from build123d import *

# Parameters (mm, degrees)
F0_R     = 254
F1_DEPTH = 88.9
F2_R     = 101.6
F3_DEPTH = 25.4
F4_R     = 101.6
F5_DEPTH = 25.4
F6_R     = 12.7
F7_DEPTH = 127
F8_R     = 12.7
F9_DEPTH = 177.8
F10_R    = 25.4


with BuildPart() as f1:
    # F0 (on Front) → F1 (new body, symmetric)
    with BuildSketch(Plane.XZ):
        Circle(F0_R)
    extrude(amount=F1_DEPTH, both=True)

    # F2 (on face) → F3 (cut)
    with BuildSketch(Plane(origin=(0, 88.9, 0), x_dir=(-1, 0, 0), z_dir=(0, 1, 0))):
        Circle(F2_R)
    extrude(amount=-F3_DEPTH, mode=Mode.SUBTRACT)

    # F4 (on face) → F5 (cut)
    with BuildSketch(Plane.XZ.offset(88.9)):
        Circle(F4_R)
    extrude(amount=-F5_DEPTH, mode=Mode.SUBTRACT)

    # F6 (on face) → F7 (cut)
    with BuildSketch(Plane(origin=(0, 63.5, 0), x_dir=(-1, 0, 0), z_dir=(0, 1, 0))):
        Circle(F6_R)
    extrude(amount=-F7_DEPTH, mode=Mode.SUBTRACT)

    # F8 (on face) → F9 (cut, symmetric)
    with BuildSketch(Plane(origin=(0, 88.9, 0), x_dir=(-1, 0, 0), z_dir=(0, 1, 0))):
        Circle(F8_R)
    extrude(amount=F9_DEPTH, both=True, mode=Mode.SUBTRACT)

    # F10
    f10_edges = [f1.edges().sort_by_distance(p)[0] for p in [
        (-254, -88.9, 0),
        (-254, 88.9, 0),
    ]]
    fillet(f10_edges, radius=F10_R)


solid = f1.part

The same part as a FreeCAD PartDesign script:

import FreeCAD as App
import Part
import Sketcher

V = App.Vector
Q = App.Units.Quantity


def edges_at(feature, points):
    """Names of the edges that pass closest to the given points."""
    edges = feature.Shape.Edges
    near = lambda p: min(range(len(edges)), key=lambda i: edges[i].distToShape(Part.Vertex(*p))[0])
    return sorted({f"Edge{near(p) + 1}" for p in points})

doc = App.newDocument("Part")
body = doc.addObject("PartDesign::Body", "Body")

sketch1 = body.newObject("Sketcher::SketchObject", "Sketch")
sketch1.AttachmentSupport = (doc.getObject("XZ_Plane"), [""])
sketch1.MapMode = "FlatFace"
sketch1.addGeometry(Part.Circle(V(0, 0, 0), V(0, 0, 1), 254), False)
sketch1.addConstraint([
    Sketcher.Constraint("Coincident", 0, 3, -1, 1),
    Sketcher.Constraint("Diameter", 0, Q("20 in")),
])
pad1 = body.newObject("PartDesign::Pad", "Pad")
pad1.Profile = sketch1
pad1.Length = Q("7 in")
pad1.Midplane = True

sketch2 = body.newObject("Sketcher::SketchObject", "Sketch001")
sketch2.AttachmentSupport = (doc.getObject("XZ_Plane"), [""])
sketch2.MapMode = "FlatFace"
sketch2.AttachmentOffset = App.Placement(V(0, 0, -3.5 * 25.4), App.Rotation())
sketch2.addGeometry(Part.Circle(V(0, 0, 0), V(0, 0, 1), 102), False)
sketch2.addConstraint([
    Sketcher.Constraint("Coincident", 0, 3, -1, 1),
    Sketcher.Constraint("Diameter", 0, Q("8 in")),
])
pocket1 = body.newObject("PartDesign::Pocket", "Pocket")
pocket1.Profile = sketch2
pocket1.Length = Q("1 in")
pocket1.Reversed = True

sketch3 = body.newObject("Sketcher::SketchObject", "Sketch002")
sketch3.AttachmentSupport = (doc.getObject("XZ_Plane"), [""])
sketch3.MapMode = "FlatFace"
sketch3.AttachmentOffset = App.Placement(V(0, 0, 3.5 * 25.4), App.Rotation())
sketch3.addGeometry(Part.Circle(V(0, 0, 0), V(0, 0, 1), 102), False)
sketch3.addConstraint([
    Sketcher.Constraint("Coincident", 0, 3, -1, 1),
    Sketcher.Constraint("Diameter", 0, Q("8 in")),
])
pocket2 = body.newObject("PartDesign::Pocket", "Pocket001")
pocket2.Profile = sketch3
pocket2.Length = Q("1 in")

sketch4 = body.newObject("Sketcher::SketchObject", "Sketch003")
sketch4.AttachmentSupport = (doc.getObject("XZ_Plane"), [""])
sketch4.MapMode = "FlatFace"
sketch4.AttachmentOffset = App.Placement(V(0, 0, -2.5 * 25.4), App.Rotation())
sketch4.addGeometry(Part.Circle(V(0, 0, 0), V(0, 0, 1), 13), False)
sketch4.addConstraint([
    Sketcher.Constraint("Coincident", 0, 3, -1, 1),
    Sketcher.Constraint("Diameter", 0, Q("1 in")),
])
pocket3 = body.newObject("PartDesign::Pocket", "Pocket002")
pocket3.Profile = sketch4
pocket3.Length = Q("5 in")
pocket3.Reversed = True

sketch5 = body.newObject("Sketcher::SketchObject", "Sketch004")
sketch5.AttachmentSupport = (doc.getObject("XZ_Plane"), [""])
sketch5.MapMode = "FlatFace"
sketch5.AttachmentOffset = App.Placement(V(0, 0, -3.5 * 25.4), App.Rotation())
sketch5.addGeometry(Part.Circle(V(0, 0, 0), V(0, 0, 1), 13), False)
sketch5.addConstraint([
    Sketcher.Constraint("Coincident", 0, 3, -1, 1),
    Sketcher.Constraint("Diameter", 0, Q("1 in")),
])
pocket4 = body.newObject("PartDesign::Pocket", "Pocket003")
pocket4.Profile = sketch5
pocket4.Length = Q("14 in")
pocket4.Midplane = True
doc.recompute()

fillet = body.newObject("PartDesign::Fillet", "Fillet")
fillet.Base = (pocket4, edges_at(pocket4, [(-254, -88.9, 0), (-254, 88.9, 0)]))
fillet.Radius = Q("1 in")

doc.recompute()
